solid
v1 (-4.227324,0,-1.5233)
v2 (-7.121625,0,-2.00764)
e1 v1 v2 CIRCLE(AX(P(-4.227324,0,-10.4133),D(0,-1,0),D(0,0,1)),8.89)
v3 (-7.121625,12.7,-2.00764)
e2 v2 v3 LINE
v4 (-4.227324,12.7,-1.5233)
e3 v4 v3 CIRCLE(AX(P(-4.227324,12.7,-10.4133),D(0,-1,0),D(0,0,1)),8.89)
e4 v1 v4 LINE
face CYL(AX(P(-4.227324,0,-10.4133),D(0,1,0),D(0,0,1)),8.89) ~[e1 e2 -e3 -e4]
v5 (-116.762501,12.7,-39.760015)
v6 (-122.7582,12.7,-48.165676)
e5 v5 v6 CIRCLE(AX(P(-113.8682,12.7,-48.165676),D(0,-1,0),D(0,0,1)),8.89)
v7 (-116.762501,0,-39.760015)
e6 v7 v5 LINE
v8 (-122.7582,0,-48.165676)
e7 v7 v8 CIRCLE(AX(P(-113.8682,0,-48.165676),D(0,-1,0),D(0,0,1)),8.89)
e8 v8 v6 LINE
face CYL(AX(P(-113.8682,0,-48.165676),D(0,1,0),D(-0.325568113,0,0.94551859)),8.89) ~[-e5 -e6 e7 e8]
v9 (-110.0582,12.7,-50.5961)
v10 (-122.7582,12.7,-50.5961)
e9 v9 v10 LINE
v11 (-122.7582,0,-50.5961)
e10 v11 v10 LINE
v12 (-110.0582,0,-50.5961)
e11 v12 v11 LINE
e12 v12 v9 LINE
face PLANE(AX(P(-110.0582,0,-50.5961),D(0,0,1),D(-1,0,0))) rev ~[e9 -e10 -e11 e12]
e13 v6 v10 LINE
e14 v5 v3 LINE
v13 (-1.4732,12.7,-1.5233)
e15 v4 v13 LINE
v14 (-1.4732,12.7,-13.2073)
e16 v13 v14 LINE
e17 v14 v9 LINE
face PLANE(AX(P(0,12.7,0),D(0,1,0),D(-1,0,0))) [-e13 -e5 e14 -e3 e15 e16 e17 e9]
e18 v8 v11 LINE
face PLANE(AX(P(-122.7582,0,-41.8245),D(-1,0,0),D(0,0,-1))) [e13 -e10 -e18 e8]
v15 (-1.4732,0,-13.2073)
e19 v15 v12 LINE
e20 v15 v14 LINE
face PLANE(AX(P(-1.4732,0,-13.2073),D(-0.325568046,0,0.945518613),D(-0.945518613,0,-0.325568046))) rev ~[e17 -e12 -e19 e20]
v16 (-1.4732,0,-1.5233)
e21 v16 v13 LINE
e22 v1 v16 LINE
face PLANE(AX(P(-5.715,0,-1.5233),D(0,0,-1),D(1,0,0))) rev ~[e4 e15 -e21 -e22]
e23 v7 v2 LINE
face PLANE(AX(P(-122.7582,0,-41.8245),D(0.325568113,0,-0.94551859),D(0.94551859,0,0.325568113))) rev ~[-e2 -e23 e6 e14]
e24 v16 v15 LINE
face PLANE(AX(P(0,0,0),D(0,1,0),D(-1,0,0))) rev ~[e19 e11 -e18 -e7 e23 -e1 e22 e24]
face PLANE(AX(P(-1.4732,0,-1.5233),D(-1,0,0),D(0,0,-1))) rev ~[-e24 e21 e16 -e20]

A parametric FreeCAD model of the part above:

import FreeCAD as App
import Part
import Sketcher
Q = App.Units.Quantity


def edges_at(feature, points):
    """Names of the edges that pass closest to the given points."""
    edges = feature.Shape.Edges
    near = lambda p: min(range(len(edges)), key=lambda i: edges[i].distToShape(Part.Vertex(*p))[0])
    return sorted({f"Edge{near(p) + 1}" for p in points})


def add_polygon(sketch, points):
    """Adds a closed chain of lines whose ends are joined by coincident constraints."""
    first, n = sketch.GeometryCount, len(points)
    for a, b in zip(points, points[1:] + points[:1]):
        sketch.addGeometry(Part.LineSegment(App.Vector(*a, 0), App.Vector(*b, 0)), False)
    for i in range(n):
        sketch.addConstraint(Sketcher.Constraint("Coincident", first + i, 2, first + (i + 1) % n, 1))

doc = App.newDocument("Part")
body = doc.addObject("PartDesign::Body", "Body")

# Sketch on XZ plane
sketch1 = doc.addObject("Sketcher::SketchObject", "Sketch")
body.addObject(sketch1)
sketch1.AttachmentSupport = (doc.XZ_Plane, [""])
sketch1.MapMode = "FlatFace"
add_polygon(sketch1, [(-1.4732, -13.2073), (-110.0582, -50.5961), (-122.7582, -50.5961), (-122.7582, -41.8245), (-5.715, -1.5233), (-1.4732, -1.5233)])  # lines 0-5
sketch1.addConstraint(Sketcher.Constraint("Horizontal", 1))
sketch1.addConstraint(Sketcher.Constraint("Vertical", 2))
sketch1.addConstraint(Sketcher.Constraint("Horizontal", 4))
sketch1.addConstraint(Sketcher.Constraint("Vertical", 5))
sketch1.addConstraint(Sketcher.Constraint("Parallel", 0, 3))
sketch1.addConstraint(Sketcher.Constraint("DistanceX", 1, 2, 1, 1, Q("0.5 in")))
sketch1.addConstraint(Sketcher.Constraint("DistanceY", 5, 2, 5, 1, Q("0.46 in")))
sketch1.addConstraint(Sketcher.Constraint("DistanceX", 4, 1, 4, 2, Q("0.167 in")))
sketch1.addConstraint(Sketcher.Constraint("Angle", 0, Q("-161 deg")))
sketch1.addConstraint(Sketcher.Constraint("DistanceX", 2, 2, 4, 2, Q("4.775 in")))
sketch1.addConstraint(Sketcher.Constraint("DistanceX", 0, 2, -1, 1, Q("4.333 in")))
sketch1.addConstraint(Sketcher.Constraint("DistanceY", 0, 2, -1, 1, 50.596))
pad1 = doc.addObject("PartDesign::Pad", "Pad")
body.addObject(pad1)
pad1.Profile = sketch1
pad1.Length = Q("0.5 in")
pad1.Reversed = True
doc.recompute()

fillet = doc.addObject("PartDesign::Fillet", "Fillet")
body.addObject(fillet)
fillet.Base = (pad1, edges_at(pad1, [(-5.715, 6.35, -1.523), (-122.758, 6.35, -41.825)]))
fillet.Radius = Q("0.35 in")

doc.recompute()
